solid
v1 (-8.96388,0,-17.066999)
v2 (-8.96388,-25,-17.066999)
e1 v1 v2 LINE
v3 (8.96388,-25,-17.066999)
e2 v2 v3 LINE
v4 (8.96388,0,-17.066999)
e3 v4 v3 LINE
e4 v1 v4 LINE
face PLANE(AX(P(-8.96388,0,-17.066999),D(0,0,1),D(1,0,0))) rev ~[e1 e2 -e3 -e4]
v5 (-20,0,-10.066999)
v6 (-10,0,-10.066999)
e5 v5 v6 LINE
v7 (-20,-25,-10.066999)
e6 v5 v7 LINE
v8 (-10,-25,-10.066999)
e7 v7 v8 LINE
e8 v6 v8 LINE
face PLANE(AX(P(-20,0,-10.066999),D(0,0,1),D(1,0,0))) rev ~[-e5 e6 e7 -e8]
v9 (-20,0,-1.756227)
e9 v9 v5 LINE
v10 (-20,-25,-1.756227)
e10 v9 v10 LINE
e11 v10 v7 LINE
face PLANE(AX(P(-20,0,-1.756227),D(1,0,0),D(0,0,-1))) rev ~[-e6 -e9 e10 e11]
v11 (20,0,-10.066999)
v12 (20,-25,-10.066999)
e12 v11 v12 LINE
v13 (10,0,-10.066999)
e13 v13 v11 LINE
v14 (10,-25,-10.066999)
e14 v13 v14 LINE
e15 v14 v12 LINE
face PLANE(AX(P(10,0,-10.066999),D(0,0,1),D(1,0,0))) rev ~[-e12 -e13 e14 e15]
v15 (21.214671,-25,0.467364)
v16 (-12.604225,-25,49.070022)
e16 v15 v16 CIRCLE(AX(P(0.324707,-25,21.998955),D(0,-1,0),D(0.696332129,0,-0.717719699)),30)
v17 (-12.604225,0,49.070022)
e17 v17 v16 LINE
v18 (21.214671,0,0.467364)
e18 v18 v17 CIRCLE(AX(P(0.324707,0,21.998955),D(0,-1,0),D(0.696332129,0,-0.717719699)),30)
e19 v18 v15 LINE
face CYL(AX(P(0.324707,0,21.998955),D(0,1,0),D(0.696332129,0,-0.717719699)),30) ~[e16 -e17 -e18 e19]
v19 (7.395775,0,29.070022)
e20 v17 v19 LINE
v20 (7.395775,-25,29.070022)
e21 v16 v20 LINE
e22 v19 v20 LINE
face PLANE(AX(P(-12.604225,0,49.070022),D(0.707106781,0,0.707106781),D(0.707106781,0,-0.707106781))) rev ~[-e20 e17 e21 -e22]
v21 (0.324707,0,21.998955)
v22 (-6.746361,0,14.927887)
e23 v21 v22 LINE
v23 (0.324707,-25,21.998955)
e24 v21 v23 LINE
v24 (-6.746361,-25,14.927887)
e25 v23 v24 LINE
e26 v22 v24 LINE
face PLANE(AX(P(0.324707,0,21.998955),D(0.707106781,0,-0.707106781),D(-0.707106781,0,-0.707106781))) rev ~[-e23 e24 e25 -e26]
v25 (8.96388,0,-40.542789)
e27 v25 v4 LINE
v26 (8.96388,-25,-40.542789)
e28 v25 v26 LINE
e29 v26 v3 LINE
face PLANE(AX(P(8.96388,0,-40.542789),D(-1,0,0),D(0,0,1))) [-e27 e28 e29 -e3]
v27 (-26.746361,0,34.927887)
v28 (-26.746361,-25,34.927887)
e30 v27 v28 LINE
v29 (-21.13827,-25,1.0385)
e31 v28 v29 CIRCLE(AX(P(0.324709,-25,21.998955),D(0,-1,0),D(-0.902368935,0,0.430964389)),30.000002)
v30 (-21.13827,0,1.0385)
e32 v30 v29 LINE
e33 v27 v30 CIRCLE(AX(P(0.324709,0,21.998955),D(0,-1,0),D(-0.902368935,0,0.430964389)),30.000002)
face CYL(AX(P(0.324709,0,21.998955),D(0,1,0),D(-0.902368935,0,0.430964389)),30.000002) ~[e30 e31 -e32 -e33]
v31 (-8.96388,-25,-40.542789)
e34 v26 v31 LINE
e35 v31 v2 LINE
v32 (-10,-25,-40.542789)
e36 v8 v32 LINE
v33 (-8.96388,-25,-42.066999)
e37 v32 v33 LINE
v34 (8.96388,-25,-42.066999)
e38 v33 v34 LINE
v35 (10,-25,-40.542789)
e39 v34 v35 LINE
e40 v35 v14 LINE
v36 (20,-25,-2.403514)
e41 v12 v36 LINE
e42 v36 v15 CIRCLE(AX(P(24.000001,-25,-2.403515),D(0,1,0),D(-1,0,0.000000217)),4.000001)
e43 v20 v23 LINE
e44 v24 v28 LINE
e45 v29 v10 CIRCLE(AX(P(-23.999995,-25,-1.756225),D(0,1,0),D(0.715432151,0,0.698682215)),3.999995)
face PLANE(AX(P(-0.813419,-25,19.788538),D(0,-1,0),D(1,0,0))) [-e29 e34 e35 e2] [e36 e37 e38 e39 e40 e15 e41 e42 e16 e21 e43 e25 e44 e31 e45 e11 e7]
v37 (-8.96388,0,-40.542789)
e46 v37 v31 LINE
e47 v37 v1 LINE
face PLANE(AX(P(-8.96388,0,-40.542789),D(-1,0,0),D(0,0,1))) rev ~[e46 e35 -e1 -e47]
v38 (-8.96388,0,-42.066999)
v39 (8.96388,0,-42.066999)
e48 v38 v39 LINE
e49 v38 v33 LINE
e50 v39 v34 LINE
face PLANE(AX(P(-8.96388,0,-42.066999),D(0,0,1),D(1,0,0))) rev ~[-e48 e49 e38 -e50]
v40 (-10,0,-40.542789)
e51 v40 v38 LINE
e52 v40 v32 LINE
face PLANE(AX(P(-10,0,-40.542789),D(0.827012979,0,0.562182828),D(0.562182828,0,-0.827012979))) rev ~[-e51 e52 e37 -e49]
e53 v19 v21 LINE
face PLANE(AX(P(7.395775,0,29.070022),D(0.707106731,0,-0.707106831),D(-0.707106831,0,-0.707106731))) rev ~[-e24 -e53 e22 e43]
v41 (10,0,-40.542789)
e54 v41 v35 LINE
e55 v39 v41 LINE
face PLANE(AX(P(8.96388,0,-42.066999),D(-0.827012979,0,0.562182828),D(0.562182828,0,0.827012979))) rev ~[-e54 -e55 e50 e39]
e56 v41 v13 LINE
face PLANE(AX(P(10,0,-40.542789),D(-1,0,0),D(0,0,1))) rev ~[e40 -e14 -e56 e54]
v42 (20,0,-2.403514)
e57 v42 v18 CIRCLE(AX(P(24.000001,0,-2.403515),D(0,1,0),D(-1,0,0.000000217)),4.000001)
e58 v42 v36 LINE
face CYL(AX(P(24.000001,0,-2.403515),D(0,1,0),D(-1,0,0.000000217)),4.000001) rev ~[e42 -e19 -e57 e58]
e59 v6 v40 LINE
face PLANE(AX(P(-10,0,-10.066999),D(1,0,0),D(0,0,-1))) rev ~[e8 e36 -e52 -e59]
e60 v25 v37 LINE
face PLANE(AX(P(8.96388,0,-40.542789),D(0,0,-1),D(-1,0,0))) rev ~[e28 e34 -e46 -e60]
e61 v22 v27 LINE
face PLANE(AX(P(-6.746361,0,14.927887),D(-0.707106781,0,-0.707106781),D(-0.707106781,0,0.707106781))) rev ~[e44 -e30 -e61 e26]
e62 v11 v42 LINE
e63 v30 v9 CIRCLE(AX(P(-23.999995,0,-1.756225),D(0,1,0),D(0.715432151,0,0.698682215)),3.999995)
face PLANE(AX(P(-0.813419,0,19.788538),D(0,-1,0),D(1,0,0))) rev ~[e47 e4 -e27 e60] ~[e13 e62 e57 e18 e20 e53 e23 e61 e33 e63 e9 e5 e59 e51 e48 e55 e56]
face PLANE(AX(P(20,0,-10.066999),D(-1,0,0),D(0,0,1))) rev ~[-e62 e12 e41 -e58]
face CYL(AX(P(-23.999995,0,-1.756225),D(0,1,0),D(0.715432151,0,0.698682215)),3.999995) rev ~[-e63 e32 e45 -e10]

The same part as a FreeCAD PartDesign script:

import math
import FreeCAD as App
import Part
import Sketcher
from FreeCAD import Vector
Q = App.Units.Quantity


def add_polygon(sketch, points):
    """Adds a closed chain of lines whose ends are joined by coincident constraints."""
    first, n = sketch.GeometryCount, len(points)
    for a, b in zip(points, points[1:] + points[:1]):
        sketch.addGeometry(Part.LineSegment(App.Vector(*a, 0), App.Vector(*b, 0)), False)
    for i in range(n):
        sketch.addConstraint(Sketcher.Constraint("Coincident", first + i, 2, first + (i + 1) % n, 1))

doc = App.newDocument("Part")
body = doc.addObject("PartDesign::Body", "Body")

sketch1 = body.newObject("Sketcher::SketchObject", "Sketch")
sketch1.AttachmentSupport = (doc.getObject("XZ_Plane"), [""])
sketch1.MapMode = "FlatFace"
sketch1.addGeometry(Part.LineSegment(Vector(-9, -42.1, 0), Vector(9, -42.1, 0)), False)
sketch1.addGeometry(Part.LineSegment(Vector(9, -42.1, 0), Vector(10, -40.5, 0)), False)
sketch1.addGeometry(Part.LineSegment(Vector(10, -40.5, 0), Vector(10, -10.1, 0)), False)
sketch1.addGeometry(Part.LineSegment(Vector(10, -10.1, 0), Vector(20, -10.1, 0)), False)
sketch1.addGeometry(Part.LineSegment(Vector(20, -10.1, 0), Vector(20, -2.4, 0)), False)
sketch1.addGeometry(Part.ArcOfCircle(Part.Circle(Vector(24, -2.4, 0), Vector(0, 0, 1), 4), math.radians(134), math.radians(180)), False)
sketch1.addGeometry(Part.ArcOfCircle(Part.Circle(Vector(0.3, 22, 0), Vector(0, 0, 1), 30), math.radians(-46), math.radians(116)), False)
sketch1.addGeometry(Part.LineSegment(Vector(-12.6, 49.1, 0), Vector(7.4, 29.1, 0)), False)
sketch1.addGeometry(Part.LineSegment(Vector(7.4, 29.1, 0), Vector(0.3, 22, 0)), False)
sketch1.addGeometry(Part.LineSegment(Vector(0.3, 22, 0), Vector(-6.7, 14.9, 0)), False)
sketch1.addGeometry(Part.LineSegment(Vector(-6.7, 14.9, 0), Vector(-26.7, 34.9, 0)), False)
sketch1.addGeometry(Part.ArcOfCircle(Part.Circle(Vector(0.3, 22, 0), Vector(0, 0, 1), 30), math.radians(154), math.radians(224)), False)
sketch1.addGeometry(Part.ArcOfCircle(Part.Circle(Vector(-24, -1.8, 0), Vector(0, 0, 1), 4), math.radians(0), math.radians(44)), False)
sketch1.addGeometry(Part.LineSegment(Vector(-20, -1.8, 0), Vector(-20, -10.1, 0)), False)
sketch1.addGeometry(Part.LineSegment(Vector(-20, -10.1, 0), Vector(-10, -10.1, 0)), False)
sketch1.addGeometry(Part.LineSegment(Vector(-10, -10.1, 0), Vector(-10, -40.5, 0)), False)
sketch1.addGeometry(Part.LineSegment(Vector(-10, -40.5, 0), Vector(-9, -42.1, 0)), False)
add_polygon(sketch1, [(9, -17.1), (9, -40.5), (-9, -40.5), (-9, -17.1)])
sketch1.addConstraint([
    Sketcher.Constraint("Coincident", 0, 2, 1, 1),
    Sketcher.Constraint("Coincident", 1, 2, 2, 1),
    Sketcher.Constraint("Coincident", 2, 2, 3, 1),
    Sketcher.Constraint("Coincident", 3, 2, 4, 1),
    Sketcher.Constraint("Tangent", 4, 2, 5, 2),
    Sketcher.Constraint("Tangent", 5, 1, 6, 1),
    Sketcher.Constraint("Coincident", 6, 2, 7, 1),
    Sketcher.Constraint("Coincident", 7, 2, 8, 1),
    Sketcher.Constraint("Coincident", 8, 2, 9, 1),
    Sketcher.Constraint("Coincident", 9, 2, 10, 1),
    Sketcher.Constraint("Coincident", 10, 2, 11, 1),
    Sketcher.Constraint("Tangent", 11, 2, 12, 2),
    Sketcher.Constraint("Tangent", 12, 1, 13, 1),
    Sketcher.Constraint("Coincident", 13, 2, 14, 1),
    Sketcher.Constraint("Coincident", 14, 2, 15, 1),
    Sketcher.Constraint("Coincident", 15, 2, 16, 1),
    Sketcher.Constraint("Coincident", 16, 2, 0, 1),
    Sketcher.Constraint("Horizontal", 0),
    Sketcher.Constraint("Vertical", 2),
    Sketcher.Constraint("Horizontal", 3),
    Sketcher.Constraint("Vertical", 4),
    Sketcher.Constraint("Vertical", 13),
    Sketcher.Constraint("Horizontal", 14),
    Sketcher.Constraint("Vertical", 15),
    Sketcher.Constraint("Vertical", 17),
    Sketcher.Constraint("Horizontal", 18),
    Sketcher.Constraint("Vertical", 19),
    Sketcher.Constraint("Horizontal", 20),
    Sketcher.Constraint("Coincident", 11, 3, 6, 3),
    Sketcher.Constraint("Coincident", 8, 2, 6, 3),
    Sketcher.Constraint("Symmetric", 3, 2, 13, 2, -2),
    Sketcher.Constraint("Symmetric", 1, 2, 15, 2, -2),
    Sketcher.Constraint("Perpendicular", 7, 8),
    Sketcher.Constraint("Parallel", 8, 9),
    Sketcher.Constraint("Perpendicular", 9, 10),
    Sketcher.Constraint("Horizontal", 15, 2, 17, 2),
    Sketcher.Constraint("Vertical", 0, 2, 17, 2),
    Sketcher.Constraint("Vertical", 16, 2, 18, 2),
    Sketcher.Constraint("Equal", 8, 9),
    Sketcher.Constraint("Equal", 7, 10),
    Sketcher.Constraint("Equal", 1, 16),
    Sketcher.Constraint("Radius", 5, Q("4.000001 mm")),
    Sketcher.Constraint("Radius", 6, Q("30 mm")),
    Sketcher.Constraint("DistanceX", 3, 1, 3, 2, Q("10 mm")),
    Sketcher.Constraint("Angle", 7, Q("-45 deg")),
    Sketcher.Constraint("Distance", 8, Q("10 mm")),
    Sketcher.Constraint("DistanceX", -1, 1, 5, 3, Q("24.000001 mm")),
    Sketcher.Constraint("DistanceY", 0, 2, 2, 2, Q("32 mm")),
    Sketcher.Constraint("DistanceY", 19, 2, 14, 2, Q("7 mm")),
    Sketcher.Constraint("DistanceY", 0, 2, -1, 1, Q("42.066999 mm")),
    Sketcher.Constraint("Radius", 12, Q("3.999995 mm")),
    Sketcher.Constraint("DistanceX", 0, 1, 0, 2, Q("17.92776 mm")),
    Sketcher.Constraint("DistanceY", 2, 1, 2, 2, Q("30.47579 mm")),
    Sketcher.Constraint("DistanceY", -1, 1, 11, 2, Q("1.0385 mm")),
    Sketcher.Constraint("DistanceY", 4, 1, 4, 2, Q("7.663485 mm")),
])
pad1 = body.newObject("PartDesign::Pad", "Pad")
pad1.Profile = sketch1
pad1.Length = 25

doc.recompute()
